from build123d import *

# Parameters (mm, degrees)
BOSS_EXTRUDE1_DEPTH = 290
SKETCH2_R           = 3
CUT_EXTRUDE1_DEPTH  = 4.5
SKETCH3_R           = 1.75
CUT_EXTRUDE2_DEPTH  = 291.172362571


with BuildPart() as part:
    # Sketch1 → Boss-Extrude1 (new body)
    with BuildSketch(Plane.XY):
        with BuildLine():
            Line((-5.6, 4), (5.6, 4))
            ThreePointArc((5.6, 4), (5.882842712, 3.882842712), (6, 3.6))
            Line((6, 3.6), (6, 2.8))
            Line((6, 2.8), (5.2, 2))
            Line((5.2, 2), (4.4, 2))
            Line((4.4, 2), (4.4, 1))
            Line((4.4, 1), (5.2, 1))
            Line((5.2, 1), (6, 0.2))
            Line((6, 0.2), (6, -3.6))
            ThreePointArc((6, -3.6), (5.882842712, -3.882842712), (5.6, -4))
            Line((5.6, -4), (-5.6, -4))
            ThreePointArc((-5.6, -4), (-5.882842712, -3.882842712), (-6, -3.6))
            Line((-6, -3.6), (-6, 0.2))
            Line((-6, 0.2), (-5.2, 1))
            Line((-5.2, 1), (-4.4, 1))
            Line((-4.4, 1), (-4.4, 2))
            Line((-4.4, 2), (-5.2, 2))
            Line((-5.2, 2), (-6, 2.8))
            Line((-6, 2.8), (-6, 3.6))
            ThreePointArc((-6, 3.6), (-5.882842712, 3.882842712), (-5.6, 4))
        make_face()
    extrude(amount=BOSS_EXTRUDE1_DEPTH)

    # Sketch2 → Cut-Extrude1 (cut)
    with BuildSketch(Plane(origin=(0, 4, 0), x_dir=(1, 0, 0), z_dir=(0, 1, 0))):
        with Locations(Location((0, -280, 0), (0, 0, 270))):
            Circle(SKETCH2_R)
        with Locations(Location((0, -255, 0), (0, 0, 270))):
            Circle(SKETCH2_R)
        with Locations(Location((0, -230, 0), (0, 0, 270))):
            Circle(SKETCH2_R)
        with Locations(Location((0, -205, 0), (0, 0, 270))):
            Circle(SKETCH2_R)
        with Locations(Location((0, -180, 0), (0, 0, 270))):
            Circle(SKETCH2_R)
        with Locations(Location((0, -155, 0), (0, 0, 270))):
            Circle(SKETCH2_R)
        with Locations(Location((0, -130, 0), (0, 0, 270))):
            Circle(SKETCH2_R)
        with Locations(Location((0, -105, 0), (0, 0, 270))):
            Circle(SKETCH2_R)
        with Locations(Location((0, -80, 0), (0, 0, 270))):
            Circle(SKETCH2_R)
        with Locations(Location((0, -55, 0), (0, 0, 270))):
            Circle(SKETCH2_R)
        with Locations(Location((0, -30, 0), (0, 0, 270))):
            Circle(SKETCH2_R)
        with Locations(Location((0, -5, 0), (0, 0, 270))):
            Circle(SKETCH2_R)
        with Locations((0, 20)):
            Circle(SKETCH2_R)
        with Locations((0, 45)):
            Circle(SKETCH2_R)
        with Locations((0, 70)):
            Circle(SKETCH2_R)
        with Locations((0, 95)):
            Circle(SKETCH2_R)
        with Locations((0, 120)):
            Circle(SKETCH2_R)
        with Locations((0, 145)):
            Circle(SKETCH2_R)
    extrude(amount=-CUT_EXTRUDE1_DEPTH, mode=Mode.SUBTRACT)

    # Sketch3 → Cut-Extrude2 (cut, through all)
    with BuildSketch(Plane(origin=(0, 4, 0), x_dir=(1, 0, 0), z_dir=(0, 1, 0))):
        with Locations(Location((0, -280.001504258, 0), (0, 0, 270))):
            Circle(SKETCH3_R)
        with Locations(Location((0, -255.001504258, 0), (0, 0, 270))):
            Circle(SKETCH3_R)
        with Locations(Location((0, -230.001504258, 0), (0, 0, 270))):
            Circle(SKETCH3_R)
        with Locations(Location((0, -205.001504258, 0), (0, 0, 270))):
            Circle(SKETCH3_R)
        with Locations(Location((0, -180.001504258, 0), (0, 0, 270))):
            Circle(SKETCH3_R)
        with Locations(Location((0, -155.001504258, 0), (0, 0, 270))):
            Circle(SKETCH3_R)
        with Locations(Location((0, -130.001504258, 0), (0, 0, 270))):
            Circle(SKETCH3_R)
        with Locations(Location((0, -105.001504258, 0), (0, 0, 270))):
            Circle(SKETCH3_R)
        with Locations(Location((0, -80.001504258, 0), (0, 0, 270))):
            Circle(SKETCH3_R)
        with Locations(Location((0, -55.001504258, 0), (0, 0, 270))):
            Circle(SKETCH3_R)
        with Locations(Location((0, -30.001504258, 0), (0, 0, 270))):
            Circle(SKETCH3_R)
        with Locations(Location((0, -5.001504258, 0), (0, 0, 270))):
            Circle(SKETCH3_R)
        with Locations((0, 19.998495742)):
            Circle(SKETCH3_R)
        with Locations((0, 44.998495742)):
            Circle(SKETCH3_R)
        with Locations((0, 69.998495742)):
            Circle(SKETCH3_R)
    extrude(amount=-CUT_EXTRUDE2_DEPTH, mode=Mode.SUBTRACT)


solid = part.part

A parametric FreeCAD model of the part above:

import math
import FreeCAD as App
import Part
import Sketcher

V = App.Vector

doc = App.newDocument("Part")
body = doc.addObject("PartDesign::Body", "Body")

# Sketch on XY plane
sketch1 = body.newObject("Sketcher::SketchObject", "Sketch")
sketch1.AttachmentSupport = (doc.getObject("XY_Plane"), [""])
sketch1.MapMode = "FlatFace"
sketch1.addGeometry([
    Part.LineSegment(V(5.6, 4, 0), V(-5.6, 4, 0)),  # 0
    Part.ArcOfCircle(Part.Circle(V(-5.6, 3.6, 0), V(0, 0, 1), 0.4), math.radians(90), math.radians(180)),  # 1
    Part.LineSegment(V(-6, 3.6, 0), V(-6, 2.8, 0)),  # 2
    Part.LineSegment(V(-6, 2.8, 0), V(-5.2, 2, 0)),  # 3
    Part.LineSegment(V(-5.2, 2, 0), V(-4.4, 2, 0)),  # 4
    Part.LineSegment(V(-4.4, 2, 0), V(-4.4, 1, 0)),  # 5
    Part.LineSegment(V(-4.4, 1, 0), V(-5.2, 1, 0)),  # 6
    Part.LineSegment(V(-5.2, 1, 0), V(-6, 0.2, 0)),  # 7
    Part.LineSegment(V(-6, 0.2, 0), V(-6, -3.6, 0)),  # 8
    Part.ArcOfCircle(Part.Circle(V(-5.6, -3.6, 0), V(0, 0, 1), 0.4), math.radians(-180), math.radians(-90)),  # 9
    Part.LineSegment(V(-5.6, -4, 0), V(5.6, -4, 0)),  # 10
    Part.ArcOfCircle(Part.Circle(V(5.6, -3.6, 0), V(0, 0, 1), 0.4), math.radians(-90), math.radians(0)),  # 11
    Part.LineSegment(V(6, -3.6, 0), V(6, 0.2, 0)),  # 12
    Part.LineSegment(V(6, 0.2, 0), V(5.2, 1, 0)),  # 13
    Part.LineSegment(V(5.2, 1, 0), V(4.4, 1, 0)),  # 14
    Part.LineSegment(V(4.4, 1, 0), V(4.4, 2, 0)),  # 15
    Part.LineSegment(V(4.4, 2, 0), V(5.2, 2, 0)),  # 16
    Part.LineSegment(V(5.2, 2, 0), V(6, 2.8, 0)),  # 17
    Part.LineSegment(V(6, 2.8, 0), V(6, 3.6, 0)),  # 18
    Part.ArcOfCircle(Part.Circle(V(5.6, 3.6, 0), V(0, 0, 1), 0.4), math.radians(0), math.radians(90)),  # 19
], False)
sketch1.addConstraint([
    Sketcher.Constraint("Tangent", 0, 2, 1, 1),
    Sketcher.Constraint("Tangent", 1, 2, 2, 1),
    Sketcher.Constraint("Coincident", 2, 2, 3, 1),
    Sketcher.Constraint("Coincident", 3, 2, 4, 1),
    Sketcher.Constraint("Coincident", 4, 2, 5, 1),
    Sketcher.Constraint("Coincident", 5, 2, 6, 1),
    Sketcher.Constraint("Coincident", 6, 2, 7, 1),
    Sketcher.Constraint("Coincident", 7, 2, 8, 1),
    Sketcher.Constraint("Tangent", 8, 2, 9, 1),
    Sketcher.Constraint("Tangent", 9, 2, 10, 1),
    Sketcher.Constraint("Tangent", 10, 2, 11, 1),
    Sketcher.Constraint("Tangent", 11, 2, 12, 1),
    Sketcher.Constraint("Coincident", 12, 2, 13, 1),
    Sketcher.Constraint("Coincident", 13, 2, 14, 1),
    Sketcher.Constraint("Coincident", 14, 2, 15, 1),
    Sketcher.Constraint("Coincident", 15, 2, 16, 1),
    Sketcher.Constraint("Coincident", 16, 2, 17, 1),
    Sketcher.Constraint("Coincident", 17, 2, 18, 1),
    Sketcher.Constraint("Tangent", 18, 2, 19, 1),
    Sketcher.Constraint("Tangent", 19, 2, 0, 1),
    Sketcher.Constraint("Horizontal", 0),
    Sketcher.Constraint("Vertical", 2),
    Sketcher.Constraint("Horizontal", 4),
    Sketcher.Constraint("Vertical", 5),
    Sketcher.Constraint("Horizontal", 6),
    Sketcher.Constraint("Vertical", 8),
    Sketcher.Constraint("Horizontal", 10),
    Sketcher.Constraint("Vertical", 12),
    Sketcher.Constraint("Horizontal", 14),
    Sketcher.Constraint("Vertical", 15),
    Sketcher.Constraint("Horizontal", 16),
    Sketcher.Constraint("Vertical", 18),
    Sketcher.Constraint("Equal", 1, 9),
    Sketcher.Constraint("Equal", 9, 11),
    Sketcher.Constraint("Equal", 11, 19),
    Sketcher.Constraint("Symmetric", 1, 3, 11, 3, -1, 1),
    Sketcher.Constraint("Symmetric", 7, 2, 12, 2, -2),
    Sketcher.Constraint("Symmetric", 6, 2, 13, 2, -2),
    Sketcher.Constraint("Symmetric", 4, 2, 15, 2, -2),
    Sketcher.Constraint("Symmetric", 2, 2, 17, 2, -2),
    Sketcher.Constraint("Perpendicular", 3, 7),
    Sketcher.Constraint("Perpendicular", 7, 13),
    Sketcher.Constraint("Perpendicular", 13, 17),
    Sketcher.Constraint("Vertical", 3, 2, 6, 2),
    Sketcher.Constraint("Equal", 16, 2),
    Sketcher.Constraint("Radius", 1, 0.4),
    Sketcher.Constraint("DistanceY", 5, 2, 5, 1, 1.0),
    Sketcher.Constraint("DistanceX", 0, 2, 0, 1, 11.2),
    Sketcher.Constraint("DistanceX", 4, 1, 4, 2, 0.8),
    Sketcher.Constraint("DistanceY", 8, 2, 8, 1, 3.8),
    Sketcher.Constraint("DistanceY", -1, 1, 0, 2, 4.0),
])
pad1 = body.newObject("PartDesign::Pad", "Pad")
pad1.Profile = sketch1
pad1.Length = 290

# Sketch on XZ plane
sketch2 = body.newObject("Sketcher::SketchObject", "Sketch001")
sketch2.AttachmentSupport = (doc.getObject("XZ_Plane"), [""])
sketch2.MapMode = "FlatFace"
sketch2.AttachmentOffset = App.Placement(V(0, 0, -4), App.Rotation())
sketch2.addGeometry([
    Part.Circle(V(0, 280, 0), V(0, 0, 1), 3),  # 0
    Part.Circle(V(0, 255, 0), V(0, 0, 1), 3),  # 1
    Part.Circle(V(0, 230, 0), V(0, 0, 1), 3),  # 2
    Part.Circle(V(0, 205, 0), V(0, 0, 1), 3),  # 3
    Part.Circle(V(0, 180, 0), V(0, 0, 1), 3),  # 4
    Part.Circle(V(0, 155, 0), V(0, 0, 1), 3),  # 5
    Part.Circle(V(0, 130, 0), V(0, 0, 1), 3),  # 6
    Part.Circle(V(0, 105, 0), V(0, 0, 1), 3),  # 7
    Part.Circle(V(0, 80, 0), V(0, 0, 1), 3),  # 8
    Part.Circle(V(0, 55, 0), V(0, 0, 1), 3),  # 9
    Part.Circle(V(0, 30, 0), V(0, 0, 1), 3),  # 10
    Part.Circle(V(0, 5, 0), V(0, 0, 1), 3),  # 11
    Part.Circle(V(0, -20, 0), V(0, 0, 1), 3),  # 12
    Part.Circle(V(0, -45, 0), V(0, 0, 1), 3),  # 13
    Part.Circle(V(0, -70, 0), V(0, 0, 1), 3),  # 14
    Part.Circle(V(0, -95, 0), V(0, 0, 1), 3),  # 15
    Part.Circle(V(0, -120, 0), V(0, 0, 1), 3),  # 16
    Part.Circle(V(0, -145, 0), V(0, 0, 1), 3),  # 17
], False)
sketch2.addConstraint([
    Sketcher.Constraint("Equal", 0, 1),
    Sketcher.Constraint("Equal", 1, 2),
    Sketcher.Constraint("Equal", 2, 3),
    Sketcher.Constraint("Equal", 3, 4),
    Sketcher.Constraint("Equal", 4, 5),
    Sketcher.Constraint("Equal", 5, 6),
    Sketcher.Constraint("Equal", 6, 7),
    Sketcher.Constraint("Equal", 7, 8),
    Sketcher.Constraint("Equal", 8, 9),
    Sketcher.Constraint("Equal", 9, 10),
    Sketcher.Constraint("Equal", 10, 11),
    Sketcher.Constraint("Equal", 11, 12),
    Sketcher.Constraint("Equal", 12, 13),
    Sketcher.Constraint("Equal", 13, 14),
    Sketcher.Constraint("Equal", 14, 15),
    Sketcher.Constraint("Equal", 15, 16),
    Sketcher.Constraint("Equal", 16, 17),
    Sketcher.Constraint("PointOnObject", 0, 3, -2),
    Sketcher.Constraint("PointOnObject", 1, 3, -2),
    Sketcher.Constraint("PointOnObject", 2, 3, -2),
    Sketcher.Constraint("PointOnObject", 3, 3, -2),
    Sketcher.Constraint("PointOnObject", 4, 3, -2),
    Sketcher.Constraint("PointOnObject", 5, 3, -2),
    Sketcher.Constraint("PointOnObject", 6, 3, -2),
    Sketcher.Constraint("PointOnObject", 7, 3, -2),
    Sketcher.Constraint("PointOnObject", 8, 3, -2),
    Sketcher.Constraint("PointOnObject", 9, 3, -2),
    Sketcher.Constraint("PointOnObject", 10, 3, -2),
    Sketcher.Constraint("PointOnObject", 11, 3, -2),
    Sketcher.Constraint("PointOnObject", 12, 3, -2),
    Sketcher.Constraint("PointOnObject", 13, 3, -2),
    Sketcher.Constraint("PointOnObject", 14, 3, -2),
    Sketcher.Constraint("PointOnObject", 15, 3, -2),
    Sketcher.Constraint("PointOnObject", 16, 3, -2),
    Sketcher.Constraint("PointOnObject", 17, 3, -2),
    Sketcher.Constraint("Diameter", 0, 6.0),
    Sketcher.Constraint("DistanceY", -1, 1, 0, 3, 280.0),
    Sketcher.Constraint("DistanceY", -1, 1, 1, 3, 255.0),
    Sketcher.Constraint("DistanceY", -1, 1, 2, 3, 230.0),
    Sketcher.Constraint("DistanceY", -1, 1, 3, 3, 205.0),
    Sketcher.Constraint("DistanceY", -1, 1, 4, 3, 180.0),
    Sketcher.Constraint("DistanceY", -1, 1, 5, 3, 155.0),
    Sketcher.Constraint("DistanceY", -1, 1, 6, 3, 130.0),
    Sketcher.Constraint("DistanceY", -1, 1, 7, 3, 105.0),
    Sketcher.Constraint("DistanceY", -1, 1, 8, 3, 80.0),
    Sketcher.Constraint("DistanceY", -1, 1, 9, 3, 55.0),
    Sketcher.Constraint("DistanceY", -1, 1, 10, 3, 30.0),
    Sketcher.Constraint("DistanceY", -1, 1, 11, 3, 5.0),
    Sketcher.Constraint("DistanceY", 12, 3, -1, 1, 20.0),
    Sketcher.Constraint("DistanceY", 13, 3, -1, 1, 45.0),
    Sketcher.Constraint("DistanceY", 14, 3, -1, 1, 70.0),
    Sketcher.Constraint("DistanceY", 15, 3, -1, 1, 95.0),
    Sketcher.Constraint("DistanceY", 16, 3, -1, 1, 120.0),
    Sketcher.Constraint("DistanceY", 17, 3, -1, 1, 145.0),
])
pocket1 = body.newObject("PartDesign::Pocket", "Pocket")
pocket1.Profile = sketch2
pocket1.Length = 4.5
pocket1.Reversed = True

# Sketch on XZ plane
sketch3 = body.newObject("Sketcher::SketchObject", "Sketch002")
sketch3.AttachmentSupport = (doc.getObject("XZ_Plane"), [""])
sketch3.MapMode = "FlatFace"
sketch3.AttachmentOffset = App.Placement(V(0, 0, -4), App.Rotation())
sketch3.addGeometry([
    Part.Circle(V(0, 280, 0), V(0, 0, 1), 1.8),  # 0
    Part.Circle(V(0, 255, 0), V(0, 0, 1), 1.8),  # 1
    Part.Circle(V(0, 230, 0), V(0, 0, 1), 1.8),  # 2
    Part.Circle(V(0, 205, 0), V(0, 0, 1), 1.8),  # 3
    Part.Circle(V(0, 180, 0), V(0, 0, 1), 1.8),  # 4
    Part.Circle(V(0, 155, 0), V(0, 0, 1), 1.8),  # 5
    Part.Circle(V(0, 130, 0), V(0, 0, 1), 1.8),  # 6
    Part.Circle(V(0, 105, 0), V(0, 0, 1), 1.8),  # 7
    Part.Circle(V(0, 80, 0), V(0, 0, 1), 1.8),  # 8
    Part.Circle(V(0, 55, 0), V(0, 0, 1), 1.8),  # 9
    Part.Circle(V(0, 30, 0), V(0, 0, 1), 1.8),  # 10
    Part.Circle(V(0, 5, 0), V(0, 0, 1), 1.8),  # 11
    Part.Circle(V(0, -20, 0), V(0, 0, 1), 1.8),  # 12
    Part.Circle(V(0, -45, 0), V(0, 0, 1), 1.8),  # 13
    Part.Circle(V(0, -70, 0), V(0, 0, 1), 1.8),  # 14
], False)
sketch3.addConstraint([
    Sketcher.Constraint("Equal", 0, 1),
    Sketcher.Constraint("Equal", 1, 2),
    Sketcher.Constraint("Equal", 2, 3),
    Sketcher.Constraint("Equal", 3, 4),
    Sketcher.Constraint("Equal", 4, 5),
    Sketcher.Constraint("Equal", 5, 6),
    Sketcher.Constraint("Equal", 6, 7),
    Sketcher.Constraint("Equal", 7, 8),
    Sketcher.Constraint("Equal", 8, 9),
    Sketcher.Constraint("Equal", 9, 10),
    Sketcher.Constraint("Equal", 10, 11),
    Sketcher.Constraint("Equal", 11, 12),
    Sketcher.Constraint("Equal", 12, 13),
    Sketcher.Constraint("Equal", 13, 14),
    Sketcher.Constraint("PointOnObject", 0, 3, -2),
    Sketcher.Constraint("PointOnObject", 1, 3, -2),
    Sketcher.Constraint("PointOnObject", 2, 3, -2),
    Sketcher.Constraint("PointOnObject", 3, 3, -2),
    Sketcher.Constraint("PointOnObject", 4, 3, -2),
    Sketcher.Constraint("PointOnObject", 5, 3, -2),
    Sketcher.Constraint("PointOnObject", 6, 3, -2),
    Sketcher.Constraint("PointOnObject", 7, 3, -2),
    Sketcher.Constraint("PointOnObject", 8, 3, -2),
    Sketcher.Constraint("PointOnObject", 9, 3, -2),
    Sketcher.Constraint("PointOnObject", 10, 3, -2),
    Sketcher.Constraint("PointOnObject", 11, 3, -2),
    Sketcher.Constraint("PointOnObject", 12, 3, -2),
    Sketcher.Constraint("PointOnObject", 13, 3, -2),
    Sketcher.Constraint("PointOnObject", 14, 3, -2),
    Sketcher.Constraint("Diameter", 0, 3.5),
    Sketcher.Constraint("DistanceY", 1, 3, 0, 3, 25.0),
    Sketcher.Constraint("DistanceY", 2, 3, 1, 3, 25.0),
    Sketcher.Constraint("DistanceY", 3, 3, 2, 3, 25.0),
    Sketcher.Constraint("DistanceY", 4, 3, 3, 3, 25.0),
    Sketcher.Constraint("DistanceY", 5, 3, 4, 3, 25.0),
    Sketcher.Constraint("DistanceY", 6, 3, 5, 3, 25.0),
    Sketcher.Constraint("DistanceY", 7, 3, 6, 3, 25.0),
    Sketcher.Constraint("DistanceY", 8, 3, 7, 3, 25.0),
    Sketcher.Constraint("DistanceY", 9, 3, 8, 3, 25.0),
    Sketcher.Constraint("DistanceY", 10, 3, 9, 3, 25.0),
    Sketcher.Constraint("DistanceY", 11, 3, 10, 3, 25.0),
    Sketcher.Constraint("DistanceY", 12, 3, 11, 3, 25.0),
    Sketcher.Constraint("DistanceY", 13, 3, 12, 3, 25.0),
    Sketcher.Constraint("DistanceY", 14, 3, 13, 3, 25.0),
    Sketcher.Constraint("DistanceY", -1, 1, 0, 3, 280.001504),
])
pocket2 = body.newObject("PartDesign::Pocket", "Pocket001")
pocket2.Profile = sketch3
pocket2.Type = "ThroughAll"
pocket2.Reversed = True

doc.recompute()
